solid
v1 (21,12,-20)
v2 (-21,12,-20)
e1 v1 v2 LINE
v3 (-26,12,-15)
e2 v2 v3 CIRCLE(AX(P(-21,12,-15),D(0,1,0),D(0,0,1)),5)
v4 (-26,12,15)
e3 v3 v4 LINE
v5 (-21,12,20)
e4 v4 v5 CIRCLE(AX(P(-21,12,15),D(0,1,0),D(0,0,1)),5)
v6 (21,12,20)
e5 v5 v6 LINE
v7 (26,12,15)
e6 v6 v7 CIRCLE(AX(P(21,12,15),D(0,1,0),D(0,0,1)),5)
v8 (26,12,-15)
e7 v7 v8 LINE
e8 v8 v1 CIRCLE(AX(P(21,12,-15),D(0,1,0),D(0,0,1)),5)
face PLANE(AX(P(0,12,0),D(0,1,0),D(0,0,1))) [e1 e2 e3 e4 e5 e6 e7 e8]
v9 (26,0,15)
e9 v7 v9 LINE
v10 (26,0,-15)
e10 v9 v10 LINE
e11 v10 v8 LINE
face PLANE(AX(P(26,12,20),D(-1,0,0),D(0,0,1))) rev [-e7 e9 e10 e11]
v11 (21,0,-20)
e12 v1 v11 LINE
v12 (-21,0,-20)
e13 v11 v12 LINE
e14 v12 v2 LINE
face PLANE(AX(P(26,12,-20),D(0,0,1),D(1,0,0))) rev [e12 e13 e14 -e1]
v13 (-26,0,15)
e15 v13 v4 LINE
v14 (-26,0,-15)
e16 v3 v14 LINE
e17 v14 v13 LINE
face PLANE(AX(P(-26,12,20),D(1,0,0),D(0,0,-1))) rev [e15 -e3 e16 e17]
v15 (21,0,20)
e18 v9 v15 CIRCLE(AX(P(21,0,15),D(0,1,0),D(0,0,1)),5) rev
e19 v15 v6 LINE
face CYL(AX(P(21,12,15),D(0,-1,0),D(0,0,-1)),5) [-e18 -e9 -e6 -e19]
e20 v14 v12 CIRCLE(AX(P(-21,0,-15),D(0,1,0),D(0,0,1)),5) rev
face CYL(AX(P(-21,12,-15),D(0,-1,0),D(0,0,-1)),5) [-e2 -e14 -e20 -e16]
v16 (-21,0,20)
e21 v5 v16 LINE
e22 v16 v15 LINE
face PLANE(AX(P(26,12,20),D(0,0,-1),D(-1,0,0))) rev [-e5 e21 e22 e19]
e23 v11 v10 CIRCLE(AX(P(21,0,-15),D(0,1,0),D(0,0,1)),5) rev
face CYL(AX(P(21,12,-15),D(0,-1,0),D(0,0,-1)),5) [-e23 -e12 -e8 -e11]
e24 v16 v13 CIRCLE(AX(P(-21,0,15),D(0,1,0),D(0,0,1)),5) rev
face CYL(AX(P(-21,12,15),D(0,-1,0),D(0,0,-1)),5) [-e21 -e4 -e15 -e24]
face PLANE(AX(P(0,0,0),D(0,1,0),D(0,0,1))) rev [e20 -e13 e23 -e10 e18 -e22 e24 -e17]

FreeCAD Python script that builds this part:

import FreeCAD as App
import Part
import Sketcher

V = App.Vector
Q = App.Units.Quantity


def edges_at(feature, points):
    """Names of the edges that pass closest to the given points."""
    edges = feature.Shape.Edges
    near = lambda p: min(range(len(edges)), key=lambda i: edges[i].distToShape(Part.Vertex(*p))[0])
    return sorted({f"Edge{near(p) + 1}" for p in points})


def add_polygon(sketch, points):
    """Adds a closed chain of lines whose ends are joined by coincident constraints."""
    first, n = sketch.GeometryCount, len(points)
    for a, b in zip(points, points[1:] + points[:1]):
        sketch.addGeometry(Part.LineSegment(App.Vector(*a, 0), App.Vector(*b, 0)), False)
    for i in range(n):
        sketch.addConstraint(Sketcher.Constraint("Coincident", first + i, 2, first + (i + 1) % n, 1))

doc = App.newDocument("Part")
body = doc.addObject("PartDesign::Body", "Body")

# Sketch on XZ plane
sketch1 = body.newObject("Sketcher::SketchObject", "Sketch")
sketch1.AttachmentSupport = (doc.getObject("XZ_Plane"), [""])
sketch1.MapMode = "FlatFace"
add_polygon(sketch1, [(-26, -20), (-26, 20), (26, 20), (26, -20)])  # lines 0-3
sketch1.addConstraint(Sketcher.Constraint("Vertical", 0))
sketch1.addConstraint(Sketcher.Constraint("Horizontal", 1))
sketch1.addConstraint(Sketcher.Constraint("Vertical", 2))
sketch1.addConstraint(Sketcher.Constraint("Horizontal", 3))
sketch1.addConstraint(Sketcher.Constraint("Symmetric", 0, 2, 2, 2, -1, 1))
sketch1.addConstraint(Sketcher.Constraint("DistanceX", 1, 1, 1, 2, Q("52 mm")))
sketch1.addConstraint(Sketcher.Constraint("DistanceY", 0, 1, 0, 2, Q("40 mm")))
pad1 = body.newObject("PartDesign::Pad", "Pad")
pad1.Profile = sketch1
pad1.Length = 12
pad1.Reversed = True
doc.recompute()

fillet = body.newObject("PartDesign::Fillet", "Fillet")
fillet.Base = (pad1, edges_at(pad1, [
    (-26, 6, -20),
    (26, 6, -20),
    (26, 6, 20),
    (-26, 6, 20),
]))
fillet.Radius = 5

doc.recompute()
